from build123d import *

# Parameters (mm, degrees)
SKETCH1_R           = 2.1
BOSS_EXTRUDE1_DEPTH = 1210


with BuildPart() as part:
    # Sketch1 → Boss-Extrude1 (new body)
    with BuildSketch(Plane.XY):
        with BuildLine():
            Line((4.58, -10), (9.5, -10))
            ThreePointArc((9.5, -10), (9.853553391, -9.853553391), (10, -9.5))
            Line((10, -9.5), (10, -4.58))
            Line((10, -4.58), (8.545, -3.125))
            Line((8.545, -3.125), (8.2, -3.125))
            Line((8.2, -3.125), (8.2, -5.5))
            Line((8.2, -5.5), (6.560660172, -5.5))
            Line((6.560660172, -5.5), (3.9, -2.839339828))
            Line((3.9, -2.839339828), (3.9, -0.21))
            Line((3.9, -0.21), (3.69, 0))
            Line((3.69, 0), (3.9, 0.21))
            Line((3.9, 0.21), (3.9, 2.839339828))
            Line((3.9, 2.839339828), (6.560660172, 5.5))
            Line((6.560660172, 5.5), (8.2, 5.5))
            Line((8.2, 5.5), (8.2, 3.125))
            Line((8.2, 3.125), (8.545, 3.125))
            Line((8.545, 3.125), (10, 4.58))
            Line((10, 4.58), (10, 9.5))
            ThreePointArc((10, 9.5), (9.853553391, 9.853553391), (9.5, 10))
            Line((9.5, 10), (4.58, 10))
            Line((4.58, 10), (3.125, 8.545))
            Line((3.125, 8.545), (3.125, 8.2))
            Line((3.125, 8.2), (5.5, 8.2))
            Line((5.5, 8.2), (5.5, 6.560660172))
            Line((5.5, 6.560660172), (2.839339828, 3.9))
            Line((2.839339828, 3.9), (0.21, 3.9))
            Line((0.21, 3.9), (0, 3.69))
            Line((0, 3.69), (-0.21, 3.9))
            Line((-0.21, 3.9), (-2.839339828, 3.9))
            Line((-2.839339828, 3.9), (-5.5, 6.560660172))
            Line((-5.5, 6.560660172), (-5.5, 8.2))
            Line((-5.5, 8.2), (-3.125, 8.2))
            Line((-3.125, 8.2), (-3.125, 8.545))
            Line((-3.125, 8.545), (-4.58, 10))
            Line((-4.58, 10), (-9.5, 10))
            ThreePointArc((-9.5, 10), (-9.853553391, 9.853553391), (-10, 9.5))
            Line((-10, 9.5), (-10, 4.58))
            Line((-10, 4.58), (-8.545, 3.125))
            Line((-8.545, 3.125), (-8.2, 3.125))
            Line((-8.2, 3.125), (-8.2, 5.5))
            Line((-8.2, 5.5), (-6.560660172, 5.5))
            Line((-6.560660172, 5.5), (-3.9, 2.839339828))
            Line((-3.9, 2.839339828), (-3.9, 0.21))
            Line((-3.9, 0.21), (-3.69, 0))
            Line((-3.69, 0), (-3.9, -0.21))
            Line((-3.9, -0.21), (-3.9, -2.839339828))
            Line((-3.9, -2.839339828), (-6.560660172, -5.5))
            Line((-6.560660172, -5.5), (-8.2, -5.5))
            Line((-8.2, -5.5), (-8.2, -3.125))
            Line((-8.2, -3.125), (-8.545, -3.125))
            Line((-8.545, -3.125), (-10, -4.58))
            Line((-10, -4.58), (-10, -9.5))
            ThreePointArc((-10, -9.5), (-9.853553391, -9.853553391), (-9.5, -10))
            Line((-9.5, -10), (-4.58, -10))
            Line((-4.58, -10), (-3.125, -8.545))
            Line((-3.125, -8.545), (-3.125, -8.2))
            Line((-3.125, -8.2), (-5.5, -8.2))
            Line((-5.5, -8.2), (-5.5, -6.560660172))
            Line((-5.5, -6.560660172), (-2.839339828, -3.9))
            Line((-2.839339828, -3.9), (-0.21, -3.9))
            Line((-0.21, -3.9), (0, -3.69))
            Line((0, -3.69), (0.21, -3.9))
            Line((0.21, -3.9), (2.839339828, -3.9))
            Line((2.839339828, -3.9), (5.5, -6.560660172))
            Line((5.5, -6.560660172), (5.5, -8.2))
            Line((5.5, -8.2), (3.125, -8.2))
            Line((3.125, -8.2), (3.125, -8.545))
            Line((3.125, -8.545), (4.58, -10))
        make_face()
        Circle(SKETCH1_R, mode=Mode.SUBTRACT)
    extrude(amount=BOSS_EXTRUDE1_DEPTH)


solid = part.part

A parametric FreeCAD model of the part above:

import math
import FreeCAD as App
import Part
import Sketcher

doc = App.newDocument("Part")
body = doc.addObject("PartDesign::Body", "Body")

# Sketch on XY plane
sketch1 = body.newObject("Sketcher::SketchObject", "Sketch")
sketch1.AttachmentSupport = (doc.getObject("XY_Plane"), [""])
sketch1.MapMode = "FlatFace"
sketch1.addGeometry([
    Part.LineSegment(App.Vector(4.58, -10, 0), App.Vector(9.5, -10, 0)),  # 0
    Part.ArcOfCircle(Part.Circle(App.Vector(9.5, -9.5, 0), App.Vector(0, 0, 1), 0.5), math.radians(-90), math.radians(0)),  # 1
    Part.LineSegment(App.Vector(10, -9.5, 0), App.Vector(10, -4.58, 0)),  # 2
    Part.LineSegment(App.Vector(10, -4.58, 0), App.Vector(8.54, -3.12, 0)),  # 3
    Part.LineSegment(App.Vector(8.54, -3.12, 0), App.Vector(8.2, -3.12, 0)),  # 4
    Part.LineSegment(App.Vector(8.2, -3.12, 0), App.Vector(8.2, -5.5, 0)),  # 5
    Part.LineSegment(App.Vector(8.2, -5.5, 0), App.Vector(6.56, -5.5, 0)),  # 6
    Part.LineSegment(App.Vector(6.56, -5.5, 0), App.Vector(3.9, -2.84, 0)),  # 7
    Part.LineSegment(App.Vector(3.9, -2.84, 0), App.Vector(3.9, -0.21, 0)),  # 8
    Part.LineSegment(App.Vector(3.9, -0.21, 0), App.Vector(3.69, 0, 0)),  # 9
    Part.LineSegment(App.Vector(3.69, 0, 0), App.Vector(3.9, 0.21, 0)),  # 10
    Part.LineSegment(App.Vector(3.9, 0.21, 0), App.Vector(3.9, 2.84, 0)),  # 11
    Part.LineSegment(App.Vector(3.9, 2.84, 0), App.Vector(6.56, 5.5, 0)),  # 12
    Part.LineSegment(App.Vector(6.56, 5.5, 0), App.Vector(8.2, 5.5, 0)),  # 13
    Part.LineSegment(App.Vector(8.2, 5.5, 0), App.Vector(8.2, 3.12, 0)),  # 14
    Part.LineSegment(App.Vector(8.2, 3.12, 0), App.Vector(8.54, 3.12, 0)),  # 15
    Part.LineSegment(App.Vector(8.54, 3.12, 0), App.Vector(10, 4.58, 0)),  # 16
    Part.LineSegment(App.Vector(10, 4.58, 0), App.Vector(10, 9.5, 0)),  # 17
    Part.ArcOfCircle(Part.Circle(App.Vector(9.5, 9.5, 0), App.Vector(0, 0, 1), 0.5), math.radians(0), math.radians(90)),  # 18
    Part.LineSegment(App.Vector(9.5, 10, 0), App.Vector(4.58, 10, 0)),  # 19
    Part.LineSegment(App.Vector(4.58, 10, 0), App.Vector(3.12, 8.54, 0)),  # 20
    Part.LineSegment(App.Vector(3.12, 8.54, 0), App.Vector(3.12, 8.2, 0)),  # 21
    Part.LineSegment(App.Vector(3.12, 8.2, 0), App.Vector(5.5, 8.2, 0)),  # 22
    Part.LineSegment(App.Vector(5.5, 8.2, 0), App.Vector(5.5, 6.56, 0)),  # 23
    Part.LineSegment(App.Vector(5.5, 6.56, 0), App.Vector(2.84, 3.9, 0)),  # 24
    Part.LineSegment(App.Vector(2.84, 3.9, 0), App.Vector(0.21, 3.9, 0)),  # 25
    Part.LineSegment(App.Vector(0.21, 3.9, 0), App.Vector(0, 3.69, 0)),  # 26
    Part.LineSegment(App.Vector(0, 3.69, 0), App.Vector(-0.21, 3.9, 0)),  # 27
    Part.LineSegment(App.Vector(-0.21, 3.9, 0), App.Vector(-2.84, 3.9, 0)),  # 28
    Part.LineSegment(App.Vector(-2.84, 3.9, 0), App.Vector(-5.5, 6.56, 0)),  # 29
    Part.LineSegment(App.Vector(-5.5, 6.56, 0), App.Vector(-5.5, 8.2, 0)),  # 30
    Part.LineSegment(App.Vector(-5.5, 8.2, 0), App.Vector(-3.12, 8.2, 0)),  # 31
    Part.LineSegment(App.Vector(-3.12, 8.2, 0), App.Vector(-3.12, 8.54, 0)),  # 32
    Part.LineSegment(App.Vector(-3.12, 8.54, 0), App.Vector(-4.58, 10, 0)),  # 33
    Part.LineSegment(App.Vector(-4.58, 10, 0), App.Vector(-9.5, 10, 0)),  # 34
    Part.ArcOfCircle(Part.Circle(App.Vector(-9.5, 9.5, 0), App.Vector(0, 0, 1), 0.5), math.radians(90), math.radians(180)),  # 35
    Part.LineSegment(App.Vector(-10, 9.5, 0), App.Vector(-10, 4.58, 0)),  # 36
    Part.LineSegment(App.Vector(-10, 4.58, 0), App.Vector(-8.54, 3.12, 0)),  # 37
    Part.LineSegment(App.Vector(-8.54, 3.12, 0), App.Vector(-8.2, 3.12, 0)),  # 38
    Part.LineSegment(App.Vector(-8.2, 3.12, 0), App.Vector(-8.2, 5.5, 0)),  # 39
    Part.LineSegment(App.Vector(-8.2, 5.5, 0), App.Vector(-6.56, 5.5, 0)),  # 40
    Part.LineSegment(App.Vector(-6.56, 5.5, 0), App.Vector(-3.9, 2.84, 0)),  # 41
    Part.LineSegment(App.Vector(-3.9, 2.84, 0), App.Vector(-3.9, 0.21, 0)),  # 42
    Part.LineSegment(App.Vector(-3.9, 0.21, 0), App.Vector(-3.69, 0, 0)),  # 43
    Part.LineSegment(App.Vector(-3.69, 0, 0), App.Vector(-3.9, -0.21, 0)),  # 44
    Part.LineSegment(App.Vector(-3.9, -0.21, 0), App.Vector(-3.9, -2.84, 0)),  # 45
    Part.LineSegment(App.Vector(-3.9, -2.84, 0), App.Vector(-6.56, -5.5, 0)),  # 46
    Part.LineSegment(App.Vector(-6.56, -5.5, 0), App.Vector(-8.2, -5.5, 0)),  # 47
    Part.LineSegment(App.Vector(-8.2, -5.5, 0), App.Vector(-8.2, -3.12, 0)),  # 48
    Part.LineSegment(App.Vector(-8.2, -3.12, 0), App.Vector(-8.54, -3.12, 0)),  # 49
    Part.LineSegment(App.Vector(-8.54, -3.12, 0), App.Vector(-10, -4.58, 0)),  # 50
    Part.LineSegment(App.Vector(-10, -4.58, 0), App.Vector(-10, -9.5, 0)),  # 51
    Part.ArcOfCircle(Part.Circle(App.Vector(-9.5, -9.5, 0), App.Vector(0, 0, 1), 0.5), math.radians(180), math.radians(270)),  # 52
    Part.LineSegment(App.Vector(-9.5, -10, 0), App.Vector(-4.58, -10, 0)),  # 53
    Part.LineSegment(App.Vector(-4.58, -10, 0), App.Vector(-3.12, -8.54, 0)),  # 54
    Part.LineSegment(App.Vector(-3.12, -8.54, 0), App.Vector(-3.12, -8.2, 0)),  # 55
    Part.LineSegment(App.Vector(-3.12, -8.2, 0), App.Vector(-5.5, -8.2, 0)),  # 56
    Part.LineSegment(App.Vector(-5.5, -8.2, 0), App.Vector(-5.5, -6.56, 0)),  # 57
    Part.LineSegment(App.Vector(-5.5, -6.56, 0), App.Vector(-2.84, -3.9, 0)),  # 58
    Part.LineSegment(App.Vector(-2.84, -3.9, 0), App.Vector(-0.21, -3.9, 0)),  # 59
    Part.LineSegment(App.Vector(-0.21, -3.9, 0), App.Vector(0, -3.69, 0)),  # 60
    Part.LineSegment(App.Vector(0, -3.69, 0), App.Vector(0.21, -3.9, 0)),  # 61
    Part.LineSegment(App.Vector(0.21, -3.9, 0), App.Vector(2.84, -3.9, 0)),  # 62
    Part.LineSegment(App.Vector(2.84, -3.9, 0), App.Vector(5.5, -6.56, 0)),  # 63
    Part.LineSegment(App.Vector(5.5, -6.56, 0), App.Vector(5.5, -8.2, 0)),  # 64
    Part.LineSegment(App.Vector(5.5, -8.2, 0), App.Vector(3.12, -8.2, 0)),  # 65
    Part.LineSegment(App.Vector(3.12, -8.2, 0), App.Vector(3.12, -8.54, 0)),  # 66
    Part.LineSegment(App.Vector(3.12, -8.54, 0), App.Vector(4.58, -10, 0)),  # 67
    Part.Circle(App.Vector(0, 0, 0), App.Vector(0, 0, 1), 2.1),  # 68
], False)
sketch1.addConstraint([
    Sketcher.Constraint("Tangent", 0, 2, 1, 1),
    Sketcher.Constraint("Tangent", 1, 2, 2, 1),
    Sketcher.Constraint("Coincident", 2, 2, 3, 1),
    Sketcher.Constraint("Coincident", 3, 2, 4, 1),
    Sketcher.Constraint("Coincident", 4, 2, 5, 1),
    Sketcher.Constraint("Coincident", 5, 2, 6, 1),
    Sketcher.Constraint("Coincident", 6, 2, 7, 1),
    Sketcher.Constraint("Coincident", 7, 2, 8, 1),
    Sketcher.Constraint("Coincident", 8, 2, 9, 1),
    Sketcher.Constraint("Coincident", 9, 2, 10, 1),
    Sketcher.Constraint("Coincident", 10, 2, 11, 1),
    Sketcher.Constraint("Coincident", 11, 2, 12, 1),
    Sketcher.Constraint("Coincident", 12, 2, 13, 1),
    Sketcher.Constraint("Coincident", 13, 2, 14, 1),
    Sketcher.Constraint("Coincident", 14, 2, 15, 1),
    Sketcher.Constraint("Coincident", 15, 2, 16, 1),
    Sketcher.Constraint("Coincident", 16, 2, 17, 1),
    Sketcher.Constraint("Tangent", 17, 2, 18, 1),
    Sketcher.Constraint("Tangent", 18, 2, 19, 1),
    Sketcher.Constraint("Coincident", 19, 2, 20, 1),
    Sketcher.Constraint("Coincident", 20, 2, 21, 1),
    Sketcher.Constraint("Coincident", 21, 2, 22, 1),
    Sketcher.Constraint("Coincident", 22, 2, 23, 1),
    Sketcher.Constraint("Coincident", 23, 2, 24, 1),
    Sketcher.Constraint("Coincident", 24, 2, 25, 1),
    Sketcher.Constraint("Coincident", 25, 2, 26, 1),
    Sketcher.Constraint("Coincident", 26, 2, 27, 1),
    Sketcher.Constraint("Coincident", 27, 2, 28, 1),
    Sketcher.Constraint("Coincident", 28, 2, 29, 1),
    Sketcher.Constraint("Coincident", 29, 2, 30, 1),
    Sketcher.Constraint("Coincident", 30, 2, 31, 1),
    Sketcher.Constraint("Coincident", 31, 2, 32, 1),
    Sketcher.Constraint("Coincident", 32, 2, 33, 1),
    Sketcher.Constraint("Coincident", 33, 2, 34, 1),
    Sketcher.Constraint("Tangent", 34, 2, 35, 1),
    Sketcher.Constraint("Tangent", 35, 2, 36, 1),
    Sketcher.Constraint("Coincident", 36, 2, 37, 1),
    Sketcher.Constraint("Coincident", 37, 2, 38, 1),
    Sketcher.Constraint("Coincident", 38, 2, 39, 1),
    Sketcher.Constraint("Coincident", 39, 2, 40, 1),
    Sketcher.Constraint("Coincident", 40, 2, 41, 1),
    Sketcher.Constraint("Coincident", 41, 2, 42, 1),
    Sketcher.Constraint("Coincident", 42, 2, 43, 1),
    Sketcher.Constraint("Coincident", 43, 2, 44, 1),
    Sketcher.Constraint("Coincident", 44, 2, 45, 1),
    Sketcher.Constraint("Coincident", 45, 2, 46, 1),
    Sketcher.Constraint("Coincident", 46, 2, 47, 1),
    Sketcher.Constraint("Coincident", 47, 2, 48, 1),
    Sketcher.Constraint("Coincident", 48, 2, 49, 1),
    Sketcher.Constraint("Coincident", 49, 2, 50, 1),
    Sketcher.Constraint("Coincident", 50, 2, 51, 1),
    Sketcher.Constraint("Tangent", 51, 2, 52, 1),
    Sketcher.Constraint("Tangent", 52, 2, 53, 1),
    Sketcher.Constraint("Coincident", 53, 2, 54, 1),
    Sketcher.Constraint("Coincident", 54, 2, 55, 1),
    Sketcher.Constraint("Coincident", 55, 2, 56, 1),
    Sketcher.Constraint("Coincident", 56, 2, 57, 1),
    Sketcher.Constraint("Coincident", 57, 2, 58, 1),
    Sketcher.Constraint("Coincident", 58, 2, 59, 1),
    Sketcher.Constraint("Coincident", 59, 2, 60, 1),
    Sketcher.Constraint("Coincident", 60, 2, 61, 1),
    Sketcher.Constraint("Coincident", 61, 2, 62, 1),
    Sketcher.Constraint("Coincident", 62, 2, 63, 1),
    Sketcher.Constraint("Coincident", 63, 2, 64, 1),
    Sketcher.Constraint("Coincident", 64, 2, 65, 1),
    Sketcher.Constraint("Coincident", 65, 2, 66, 1),
    Sketcher.Constraint("Coincident", 66, 2, 67, 1),
    Sketcher.Constraint("Coincident", 67, 2, 0, 1),
    Sketcher.Constraint("Horizontal", 0),
    Sketcher.Constraint("Vertical", 2),
    Sketcher.Constraint("Horizontal", 4),
    Sketcher.Constraint("Vertical", 5),
    Sketcher.Constraint("Horizontal", 6),
    Sketcher.Constraint("Vertical", 8),
    Sketcher.Constraint("Vertical", 11),
    Sketcher.Constraint("Horizontal", 13),
    Sketcher.Constraint("Vertical", 14),
    Sketcher.Constraint("Horizontal", 15),
    Sketcher.Constraint("Vertical", 17),
    Sketcher.Constraint("Horizontal", 19),
    Sketcher.Constraint("Vertical", 21),
    Sketcher.Constraint("Horizontal", 22),
    Sketcher.Constraint("Vertical", 23),
    Sketcher.Constraint("Horizontal", 25),
    Sketcher.Constraint("Horizontal", 28),
    Sketcher.Constraint("Vertical", 30),
    Sketcher.Constraint("Horizontal", 31),
    Sketcher.Constraint("Vertical", 32),
    Sketcher.Constraint("Horizontal", 34),
    Sketcher.Constraint("Vertical", 36),
    Sketcher.Constraint("Horizontal", 38),
    Sketcher.Constraint("Vertical", 39),
    Sketcher.Constraint("Horizontal", 40),
    Sketcher.Constraint("Vertical", 42),
    Sketcher.Constraint("Vertical", 45),
    Sketcher.Constraint("Horizontal", 47),
    Sketcher.Constraint("Vertical", 48),
    Sketcher.Constraint("Horizontal", 49),
    Sketcher.Constraint("Vertical", 51),
    Sketcher.Constraint("Horizontal", 53),
    Sketcher.Constraint("Vertical", 55),
    Sketcher.Constraint("Horizontal", 56),
    Sketcher.Constraint("Vertical", 57),
    Sketcher.Constraint("Horizontal", 59),
    Sketcher.Constraint("Horizontal", 62),
    Sketcher.Constraint("Vertical", 64),
    Sketcher.Constraint("Horizontal", 65),
    Sketcher.Constraint("Vertical", 66),
    Sketcher.Constraint("Coincident", 68, 3, -1, 1),
    Sketcher.Constraint("Equal", 1, 18),
    Sketcher.Constraint("Equal", 18, 35),
    Sketcher.Constraint("Equal", 35, 52),
    Sketcher.Constraint("Symmetric", 1, 3, 35, 3, -1, 1),
    Sketcher.Constraint("Symmetric", 18, 3, 52, 3, -1, 1),
    Sketcher.Constraint("Symmetric", 3, 2, 37, 2, -1, 1),
    Sketcher.Constraint("Symmetric", 5, 2, 39, 2, -1, 1),
    Sketcher.Constraint("Symmetric", 7, 2, 41, 2, -1, 1),
    Sketcher.Constraint("Symmetric", 9, 2, 43, 2, -1, 1),
    Sketcher.Constraint("Symmetric", 10, 2, 44, 2, -1, 1),
    Sketcher.Constraint("Symmetric", 12, 2, 46, 2, -1, 1),
    Sketcher.Constraint("Symmetric", 14, 2, 48, 2, -1, 1),
    Sketcher.Constraint("Symmetric", 20, 2, 54, 2, -1, 1),
    Sketcher.Constraint("Symmetric", 22, 2, 56, 2, -1, 1),
    Sketcher.Constraint("Symmetric", 24, 2, 58, 2, -1, 1),
    Sketcher.Constraint("Symmetric", 26, 2, 60, 2, -1, 1),
    Sketcher.Constraint("Symmetric", 27, 2, 61, 2, -1, 1),
    Sketcher.Constraint("Symmetric", 29, 2, 63, 2, -1, 1),
    Sketcher.Constraint("Symmetric", 31, 2, 65, 2, -1, 1),
    Sketcher.Constraint("Symmetric", 18, 3, 35, 3, -2),
    Sketcher.Constraint("Symmetric", 25, 2, 27, 2, -2),
    Sketcher.Constraint("Symmetric", 23, 2, 29, 2, -2),
    Sketcher.Constraint("Symmetric", 21, 2, 31, 2, -2),
    Sketcher.Constraint("Symmetric", 15, 2, 37, 2, -2),
    Sketcher.Constraint("Symmetric", 13, 2, 39, 2, -2),
    Sketcher.Constraint("Symmetric", 11, 2, 41, 2, -2),
    Sketcher.Constraint("PointOnObject", 9, 2, -1),
    Sketcher.Constraint("PointOnObject", 26, 2, -2),
    Sketcher.Constraint("Parallel", 3, 7),
    Sketcher.Constraint("Parallel", 7, 9),
    Sketcher.Constraint("Perpendicular", 9, 10),
    Sketcher.Constraint("Parallel", 10, 12),
    Sketcher.Constraint("Parallel", 12, 16),
    Sketcher.Constraint("Parallel", 16, 20),
    Sketcher.Constraint("Parallel", 20, 24),
    Sketcher.Constraint("Parallel", 24, 26),
    Sketcher.Constraint("Perpendicular", 26, 27),
    Sketcher.Constraint("Parallel", 27, 29),
    Sketcher.Constraint("Parallel", 29, 33),
    Sketcher.Constraint("Parallel", 33, 37),
    Sketcher.Constraint("Parallel", 37, 41),
    Sketcher.Constraint("Parallel", 41, 43),
    Sketcher.Constraint("Parallel", 44, 46),
    Sketcher.Constraint("Parallel", 46, 50),
    Sketcher.Constraint("Parallel", 50, 54),
    Sketcher.Constraint("Parallel", 54, 58),
    Sketcher.Constraint("Parallel", 58, 60),
    Sketcher.Constraint("Parallel", 61, 63),
    Sketcher.Constraint("Parallel", 63, 67),
    Sketcher.Constraint("Horizontal", 20, 2, 32, 2),
    Sketcher.Constraint("Horizontal", 2, 2, 50, 2),
    Sketcher.Constraint("Horizontal", 54, 2, 66, 2),
    Sketcher.Constraint("Equal", 53, 2),
    Sketcher.Constraint("Equal", 65, 5),
    Sketcher.Constraint("Equal", 62, 8),
    Sketcher.Constraint("Equal", 49, 21),
    Sketcher.Constraint("Equal", 47, 23),
    Sketcher.Constraint("Equal", 16, 20),
    Sketcher.Constraint("Equal", 12, 24),
    Sketcher.Constraint("Equal", 10, 26),
    Sketcher.Constraint("Diameter", 68, 4.2),
    Sketcher.Constraint("Radius", 1, 0.5),
    Sketcher.Constraint("DistanceY", 0, 2, -1, 1, 10.0),
    Sketcher.Constraint("DistanceX", 0, 1, 0, 2, 4.92),
    Sketcher.Constraint("DistanceX", -1, 1, 4, 2, 8.2),
    Sketcher.Constraint("DistanceY", 5, 2, -1, 1, 5.5),
    Sketcher.Constraint("DistanceX", -1, 1, 7, 2, 3.9),
    Sketcher.Constraint("DistanceX", 4, 2, 4, 1, 0.345),
    Sketcher.Constraint("DistanceY", 8, 2, -1, 1, 0.21),
    Sketcher.Constraint("DistanceX", 6, 2, 6, 1, 1.63934),
])
pad1 = body.newObject("PartDesign::Pad", "Pad")
pad1.Profile = sketch1
pad1.Length = 1210

doc.recompute()
